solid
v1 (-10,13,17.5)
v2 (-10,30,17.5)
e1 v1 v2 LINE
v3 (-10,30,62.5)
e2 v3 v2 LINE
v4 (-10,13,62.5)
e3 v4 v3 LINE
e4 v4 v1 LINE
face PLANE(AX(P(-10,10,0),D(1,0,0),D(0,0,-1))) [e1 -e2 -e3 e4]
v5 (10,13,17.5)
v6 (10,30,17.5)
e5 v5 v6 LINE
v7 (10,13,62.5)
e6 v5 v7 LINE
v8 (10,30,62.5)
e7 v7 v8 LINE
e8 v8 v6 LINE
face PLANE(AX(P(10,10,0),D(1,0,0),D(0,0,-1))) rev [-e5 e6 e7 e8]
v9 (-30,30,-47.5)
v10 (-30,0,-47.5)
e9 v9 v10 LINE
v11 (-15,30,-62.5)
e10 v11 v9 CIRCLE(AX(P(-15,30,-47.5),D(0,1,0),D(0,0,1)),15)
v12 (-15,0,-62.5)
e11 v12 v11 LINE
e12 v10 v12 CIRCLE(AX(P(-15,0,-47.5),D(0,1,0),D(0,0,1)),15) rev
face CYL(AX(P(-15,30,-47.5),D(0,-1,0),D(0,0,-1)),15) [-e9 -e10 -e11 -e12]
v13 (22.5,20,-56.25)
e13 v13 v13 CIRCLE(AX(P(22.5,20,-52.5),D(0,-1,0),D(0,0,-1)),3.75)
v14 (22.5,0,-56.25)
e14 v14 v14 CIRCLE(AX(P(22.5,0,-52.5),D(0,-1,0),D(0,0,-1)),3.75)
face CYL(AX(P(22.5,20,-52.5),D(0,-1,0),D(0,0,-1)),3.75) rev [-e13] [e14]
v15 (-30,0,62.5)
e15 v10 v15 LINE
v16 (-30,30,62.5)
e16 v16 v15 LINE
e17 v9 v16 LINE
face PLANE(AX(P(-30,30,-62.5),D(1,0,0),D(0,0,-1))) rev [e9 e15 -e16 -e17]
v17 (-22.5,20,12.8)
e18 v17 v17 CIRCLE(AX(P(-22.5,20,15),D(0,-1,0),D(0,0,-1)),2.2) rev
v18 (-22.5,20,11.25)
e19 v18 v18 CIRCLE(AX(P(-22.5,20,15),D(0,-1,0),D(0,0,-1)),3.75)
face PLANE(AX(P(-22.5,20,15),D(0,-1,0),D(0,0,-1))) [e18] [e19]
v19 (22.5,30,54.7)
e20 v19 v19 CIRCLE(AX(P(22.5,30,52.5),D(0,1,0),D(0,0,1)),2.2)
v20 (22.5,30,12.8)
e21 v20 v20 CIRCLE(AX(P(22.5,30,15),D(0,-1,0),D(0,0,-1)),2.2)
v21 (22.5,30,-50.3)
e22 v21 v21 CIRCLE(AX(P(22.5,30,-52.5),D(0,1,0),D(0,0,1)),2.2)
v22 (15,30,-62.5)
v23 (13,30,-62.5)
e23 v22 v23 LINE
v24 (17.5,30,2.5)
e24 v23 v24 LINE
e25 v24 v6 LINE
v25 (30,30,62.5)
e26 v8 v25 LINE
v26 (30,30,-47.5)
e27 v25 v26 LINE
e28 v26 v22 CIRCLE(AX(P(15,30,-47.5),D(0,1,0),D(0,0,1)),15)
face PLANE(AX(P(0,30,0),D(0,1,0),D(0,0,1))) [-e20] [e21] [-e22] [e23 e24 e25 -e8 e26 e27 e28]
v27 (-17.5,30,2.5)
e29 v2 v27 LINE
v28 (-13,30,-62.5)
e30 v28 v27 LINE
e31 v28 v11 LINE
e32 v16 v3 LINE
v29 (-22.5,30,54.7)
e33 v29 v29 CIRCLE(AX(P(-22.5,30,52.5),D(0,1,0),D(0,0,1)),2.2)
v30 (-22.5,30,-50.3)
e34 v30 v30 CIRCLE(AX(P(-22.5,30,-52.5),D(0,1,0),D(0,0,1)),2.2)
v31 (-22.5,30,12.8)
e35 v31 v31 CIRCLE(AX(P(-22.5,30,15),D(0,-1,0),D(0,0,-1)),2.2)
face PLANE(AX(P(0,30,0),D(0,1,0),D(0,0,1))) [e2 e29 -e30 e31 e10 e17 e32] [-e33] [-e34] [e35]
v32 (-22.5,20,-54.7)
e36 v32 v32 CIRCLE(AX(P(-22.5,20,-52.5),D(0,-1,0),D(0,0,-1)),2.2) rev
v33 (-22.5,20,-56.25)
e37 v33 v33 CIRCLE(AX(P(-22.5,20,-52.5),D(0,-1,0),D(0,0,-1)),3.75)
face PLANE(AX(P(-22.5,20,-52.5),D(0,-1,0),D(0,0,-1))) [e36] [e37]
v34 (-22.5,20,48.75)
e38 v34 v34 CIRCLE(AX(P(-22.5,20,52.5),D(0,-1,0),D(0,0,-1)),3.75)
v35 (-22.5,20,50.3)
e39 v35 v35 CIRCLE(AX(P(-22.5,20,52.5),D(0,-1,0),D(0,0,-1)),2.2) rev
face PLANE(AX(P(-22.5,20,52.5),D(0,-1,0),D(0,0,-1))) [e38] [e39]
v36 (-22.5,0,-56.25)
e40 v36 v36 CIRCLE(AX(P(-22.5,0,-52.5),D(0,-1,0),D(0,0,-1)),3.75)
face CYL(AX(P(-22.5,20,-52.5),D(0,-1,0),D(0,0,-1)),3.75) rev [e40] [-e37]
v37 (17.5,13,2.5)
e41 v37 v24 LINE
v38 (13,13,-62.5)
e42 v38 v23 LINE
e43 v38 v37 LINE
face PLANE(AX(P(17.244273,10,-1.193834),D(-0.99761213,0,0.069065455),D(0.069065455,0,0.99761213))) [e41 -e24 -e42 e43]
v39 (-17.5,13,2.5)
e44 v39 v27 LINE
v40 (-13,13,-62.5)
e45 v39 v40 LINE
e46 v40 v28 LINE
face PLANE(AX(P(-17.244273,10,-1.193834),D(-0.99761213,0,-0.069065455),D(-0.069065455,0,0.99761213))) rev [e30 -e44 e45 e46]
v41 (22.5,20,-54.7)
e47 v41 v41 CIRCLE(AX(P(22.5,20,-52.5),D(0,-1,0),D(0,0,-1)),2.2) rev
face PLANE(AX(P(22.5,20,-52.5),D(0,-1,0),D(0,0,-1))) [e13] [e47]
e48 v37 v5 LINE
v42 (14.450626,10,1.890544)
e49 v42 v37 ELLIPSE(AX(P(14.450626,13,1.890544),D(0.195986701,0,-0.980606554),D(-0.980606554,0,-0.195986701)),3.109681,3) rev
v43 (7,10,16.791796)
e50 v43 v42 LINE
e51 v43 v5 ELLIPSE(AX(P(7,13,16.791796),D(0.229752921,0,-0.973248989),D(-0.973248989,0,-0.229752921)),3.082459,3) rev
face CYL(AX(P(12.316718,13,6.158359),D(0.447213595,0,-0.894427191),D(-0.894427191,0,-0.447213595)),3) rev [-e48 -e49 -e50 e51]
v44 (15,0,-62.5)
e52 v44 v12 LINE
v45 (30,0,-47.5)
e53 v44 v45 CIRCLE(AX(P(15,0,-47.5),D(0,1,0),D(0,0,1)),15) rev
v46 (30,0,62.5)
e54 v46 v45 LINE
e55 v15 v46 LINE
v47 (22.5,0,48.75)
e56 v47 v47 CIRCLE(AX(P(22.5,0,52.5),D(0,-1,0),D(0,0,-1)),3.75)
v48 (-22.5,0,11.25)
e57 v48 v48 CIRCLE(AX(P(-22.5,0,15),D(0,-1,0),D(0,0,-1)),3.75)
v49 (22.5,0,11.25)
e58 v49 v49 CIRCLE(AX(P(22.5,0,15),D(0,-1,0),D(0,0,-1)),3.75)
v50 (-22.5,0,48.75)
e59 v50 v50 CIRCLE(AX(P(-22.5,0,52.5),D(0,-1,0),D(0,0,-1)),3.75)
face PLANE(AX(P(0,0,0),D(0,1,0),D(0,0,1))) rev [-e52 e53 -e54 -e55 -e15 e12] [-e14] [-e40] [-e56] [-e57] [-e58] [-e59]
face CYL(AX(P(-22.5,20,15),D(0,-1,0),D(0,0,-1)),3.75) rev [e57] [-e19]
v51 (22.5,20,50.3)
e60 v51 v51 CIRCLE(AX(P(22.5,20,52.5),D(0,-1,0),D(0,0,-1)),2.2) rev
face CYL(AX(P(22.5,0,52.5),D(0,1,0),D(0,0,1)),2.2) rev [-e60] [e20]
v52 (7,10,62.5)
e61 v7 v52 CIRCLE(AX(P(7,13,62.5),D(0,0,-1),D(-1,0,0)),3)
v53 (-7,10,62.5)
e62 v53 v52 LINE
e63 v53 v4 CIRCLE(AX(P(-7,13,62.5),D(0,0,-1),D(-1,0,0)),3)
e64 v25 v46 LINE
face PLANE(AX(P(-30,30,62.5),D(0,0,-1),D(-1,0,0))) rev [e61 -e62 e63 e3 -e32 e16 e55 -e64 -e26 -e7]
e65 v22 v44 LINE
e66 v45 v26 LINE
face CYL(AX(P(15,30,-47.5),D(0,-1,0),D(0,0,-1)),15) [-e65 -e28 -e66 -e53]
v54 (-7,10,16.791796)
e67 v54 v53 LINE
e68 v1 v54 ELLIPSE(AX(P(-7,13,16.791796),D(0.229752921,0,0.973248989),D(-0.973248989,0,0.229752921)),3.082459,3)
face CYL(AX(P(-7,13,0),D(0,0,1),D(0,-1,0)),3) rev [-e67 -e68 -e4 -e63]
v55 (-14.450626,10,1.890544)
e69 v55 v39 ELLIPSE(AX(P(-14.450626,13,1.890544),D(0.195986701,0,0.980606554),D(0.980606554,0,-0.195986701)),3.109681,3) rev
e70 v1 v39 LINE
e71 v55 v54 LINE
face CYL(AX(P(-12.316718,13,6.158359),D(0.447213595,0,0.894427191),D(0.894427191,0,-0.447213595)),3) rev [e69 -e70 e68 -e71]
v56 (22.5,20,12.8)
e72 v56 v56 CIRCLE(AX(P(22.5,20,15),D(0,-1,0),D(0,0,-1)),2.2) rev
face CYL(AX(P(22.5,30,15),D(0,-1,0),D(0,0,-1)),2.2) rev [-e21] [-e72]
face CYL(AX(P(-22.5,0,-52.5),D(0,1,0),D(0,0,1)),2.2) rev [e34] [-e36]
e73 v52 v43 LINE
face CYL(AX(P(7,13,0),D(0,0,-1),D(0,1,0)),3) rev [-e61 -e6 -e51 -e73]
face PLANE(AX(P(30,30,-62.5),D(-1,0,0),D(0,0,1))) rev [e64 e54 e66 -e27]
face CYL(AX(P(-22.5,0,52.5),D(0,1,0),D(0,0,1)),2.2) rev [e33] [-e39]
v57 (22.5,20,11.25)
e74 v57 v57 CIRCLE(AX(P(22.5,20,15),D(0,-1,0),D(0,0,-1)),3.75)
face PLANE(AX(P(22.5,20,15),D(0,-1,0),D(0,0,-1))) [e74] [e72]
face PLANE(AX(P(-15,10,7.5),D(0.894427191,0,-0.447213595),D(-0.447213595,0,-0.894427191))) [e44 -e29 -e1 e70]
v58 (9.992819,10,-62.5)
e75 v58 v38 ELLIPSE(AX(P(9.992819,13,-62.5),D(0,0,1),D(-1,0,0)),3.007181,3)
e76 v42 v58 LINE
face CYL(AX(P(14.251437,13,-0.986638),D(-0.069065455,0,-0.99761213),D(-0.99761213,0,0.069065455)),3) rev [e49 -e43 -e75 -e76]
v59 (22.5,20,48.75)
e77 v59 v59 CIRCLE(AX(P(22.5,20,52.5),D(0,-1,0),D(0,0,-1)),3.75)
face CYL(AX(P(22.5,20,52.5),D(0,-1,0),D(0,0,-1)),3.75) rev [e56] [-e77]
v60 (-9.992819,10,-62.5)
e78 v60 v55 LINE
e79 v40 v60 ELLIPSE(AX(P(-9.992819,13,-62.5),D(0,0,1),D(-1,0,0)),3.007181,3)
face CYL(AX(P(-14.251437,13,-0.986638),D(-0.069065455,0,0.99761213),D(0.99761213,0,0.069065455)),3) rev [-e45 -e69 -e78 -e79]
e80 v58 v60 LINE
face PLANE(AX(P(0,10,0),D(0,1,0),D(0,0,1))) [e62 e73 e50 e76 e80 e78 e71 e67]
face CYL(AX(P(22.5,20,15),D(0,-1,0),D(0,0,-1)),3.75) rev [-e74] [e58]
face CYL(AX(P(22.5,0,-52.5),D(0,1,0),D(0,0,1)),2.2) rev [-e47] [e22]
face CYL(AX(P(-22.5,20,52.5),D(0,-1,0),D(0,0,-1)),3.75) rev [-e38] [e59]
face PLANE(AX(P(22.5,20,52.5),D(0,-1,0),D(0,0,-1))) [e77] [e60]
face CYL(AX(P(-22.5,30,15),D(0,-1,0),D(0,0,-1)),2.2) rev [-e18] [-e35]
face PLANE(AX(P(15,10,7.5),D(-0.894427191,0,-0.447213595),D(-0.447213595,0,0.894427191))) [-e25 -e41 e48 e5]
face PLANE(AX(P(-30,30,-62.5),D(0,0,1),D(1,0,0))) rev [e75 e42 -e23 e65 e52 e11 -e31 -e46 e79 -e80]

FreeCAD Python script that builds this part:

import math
import FreeCAD as App
import Part
import Sketcher
Q = App.Units.Quantity


def edges_at(feature, points):
    """Names of the edges that pass closest to the given points."""
    edges = feature.Shape.Edges
    near = lambda p: min(range(len(edges)), key=lambda i: edges[i].distToShape(Part.Vertex(*p))[0])
    return sorted({f"Edge{near(p) + 1}" for p in points})


def add_polygon(sketch, points):
    """Adds a closed chain of lines whose ends are joined by coincident constraints."""
    first, n = sketch.GeometryCount, len(points)
    for a, b in zip(points, points[1:] + points[:1]):
        sketch.addGeometry(Part.LineSegment(App.Vector(*a, 0), App.Vector(*b, 0)), False)
    for i in range(n):
        sketch.addConstraint(Sketcher.Constraint("Coincident", first + i, 2, first + (i + 1) % n, 1))

doc = App.newDocument("Part")
body = doc.addObject("PartDesign::Body", "Body")

sketch1 = body.newObject("Sketcher::SketchObject", "Sketch")
sketch1.AttachmentSupport = (doc.getObject("XZ_Plane"), [""])
sketch1.MapMode = "FlatFace"
add_polygon(sketch1, [(-30, -62.5), (-30, 62.5), (30, 62.5), (30, -62.5)])
sketch1.addConstraint([
    Sketcher.Constraint("Vertical", 0),
    Sketcher.Constraint("Horizontal", 1),
    Sketcher.Constraint("Vertical", 2),
    Sketcher.Constraint("Horizontal", 3),
    Sketcher.Constraint("Symmetric", 0, 2, 2, 2, -1, 1),
    Sketcher.Constraint("DistanceX", 1, 1, 1, 2, Q("60 mm")),
    Sketcher.Constraint("DistanceY", 0, 1, 0, 2, Q("125 mm")),
])
pad1 = body.newObject("PartDesign::Pad", "Pad")
pad1.Profile = sketch1
pad1.Length = 30
pad1.Reversed = True

sketch2 = body.newObject("Sketcher::SketchObject", "Sketch001")
sketch2.AttachmentSupport = (doc.getObject("XZ_Plane"), [""])
sketch2.MapMode = "FlatFace"
sketch2.AttachmentOffset = App.Placement(App.Vector(0, 0, -30), App.Rotation())
sketch2.addGeometry([
    Part.ArcOfCircle(Part.Circle(App.Vector(-22.5, 52.5, 0), App.Vector(0, 0, 1), 2.2), math.radians(-90), math.radians(0)),
    Part.ArcOfCircle(Part.Circle(App.Vector(-22.5, 52.5, 0), App.Vector(0, 0, 1), 2.2), math.radians(0), math.radians(270)),
    Part.ArcOfCircle(Part.Circle(App.Vector(22.5, 52.5, 0), App.Vector(0, 0, 1), 2.2), math.radians(-90), math.radians(0)),
    Part.ArcOfCircle(Part.Circle(App.Vector(22.5, 52.5, 0), App.Vector(0, 0, 1), 2.2), math.radians(180), math.radians(270)),
    Part.ArcOfCircle(Part.Circle(App.Vector(22.5, 52.5, 0), App.Vector(0, 0, 1), 2.2), math.radians(0), math.radians(180)),
    Part.ArcOfCircle(Part.Circle(App.Vector(-22.5, -52.5, 0), App.Vector(0, 0, 1), 2.2), math.radians(90), math.radians(360)),
    Part.ArcOfCircle(Part.Circle(App.Vector(-22.5, -52.5, 0), App.Vector(0, 0, 1), 2.2), math.radians(0), math.radians(90)),
    Part.ArcOfCircle(Part.Circle(App.Vector(22.5, -52.5, 0), App.Vector(0, 0, 1), 2.2), math.radians(90), math.radians(180)),
    Part.ArcOfCircle(Part.Circle(App.Vector(22.5, -52.5, 0), App.Vector(0, 0, 1), 2.2), math.radians(0), math.radians(90)),
    Part.ArcOfCircle(Part.Circle(App.Vector(22.5, -52.5, 0), App.Vector(0, 0, 1), 2.2), math.radians(180), math.radians(360)),
], False)
sketch2.addConstraint([
    Sketcher.Constraint("Tangent", 0, 1, 1, 2),
    Sketcher.Constraint("Coincident", 1, 1, 0, 2),
    Sketcher.Constraint("Tangent", 2, 1, 3, 2),
    Sketcher.Constraint("Tangent", 3, 1, 4, 2),
    Sketcher.Constraint("Tangent", 4, 1, 2, 2),
    Sketcher.Constraint("Tangent", 5, 1, 6, 2),
    Sketcher.Constraint("Coincident", 6, 1, 5, 2),
    Sketcher.Constraint("Tangent", 7, 1, 8, 2),
    Sketcher.Constraint("Tangent", 8, 1, 9, 2),
    Sketcher.Constraint("Tangent", 9, 1, 7, 2),
    Sketcher.Constraint("Equal", 1, 2),
    Sketcher.Constraint("Equal", 4, 5),
    Sketcher.Constraint("Equal", 6, 7),
    Sketcher.Constraint("Symmetric", 2, 3, 5, 3, -1, 1),
    Sketcher.Constraint("Symmetric", 0, 3, 7, 3, -1, 1),
    Sketcher.Constraint("Symmetric", 0, 3, 2, 3, -2),
    Sketcher.Constraint("Horizontal", 4, 3, 1, 1),
    Sketcher.Constraint("Horizontal", 1, 1, 3, 1),
    Sketcher.Constraint("Horizontal", 3, 1, 4, 1),
    Sketcher.Constraint("Horizontal", 9, 3, 6, 1),
    Sketcher.Constraint("Horizontal", 6, 1, 8, 1),
    Sketcher.Constraint("Horizontal", 8, 1, 9, 1),
    Sketcher.Constraint("Vertical", 6, 3, 0, 1),
    Sketcher.Constraint("Vertical", 9, 3, 2, 1),
    Sketcher.Constraint("Vertical", 0, 1, 5, 1),
    Sketcher.Constraint("Vertical", 2, 1, 7, 1),
    Sketcher.Constraint("Radius", 0, Q("2.2 mm")),
    Sketcher.Constraint("DistanceX", 0, 3, 2, 3, Q("45 mm")),
    Sketcher.Constraint("DistanceY", 5, 3, 0, 3, Q("105 mm")),
])
pocket1 = body.newObject("PartDesign::Pocket", "Pocket")
pocket1.Profile = sketch2
pocket1.Type = "ThroughAll"
pocket1.Reversed = True

sketch3 = body.newObject("Sketcher::SketchObject", "Sketch002")
sketch3.AttachmentSupport = (doc.getObject("XZ_Plane"), [""])
sketch3.MapMode = "FlatFace"
sketch3.addGeometry([
    Part.ArcOfCircle(Part.Circle(App.Vector(22.5, 15, 0), App.Vector(0, 0, 1), 2.2), math.radians(180), math.radians(267.197756)),
    Part.ArcOfCircle(Part.Circle(App.Vector(22.5, 15, 0), App.Vector(0, 0, 1), 2.2), math.radians(-92.802244), math.radians(0)),
    Part.ArcOfCircle(Part.Circle(App.Vector(22.5, 15, 0), App.Vector(0, 0, 1), 2.2), math.radians(0), math.radians(92.802244)),
    Part.ArcOfCircle(Part.Circle(App.Vector(22.5, 15, 0), App.Vector(0, 0, 1), 2.2), math.radians(92.802244), math.radians(180)),
    Part.ArcOfCircle(Part.Circle(App.Vector(-22.5, 15, 0), App.Vector(0, 0, 1), 2.2), math.radians(180), math.radians(272.802244)),
    Part.ArcOfCircle(Part.Circle(App.Vector(-22.5, 15, 0), App.Vector(0, 0, 1), 2.2), math.radians(-87.197756), math.radians(0)),
    Part.ArcOfCircle(Part.Circle(App.Vector(-22.5, 15, 0), App.Vector(0, 0, 1), 2.2), math.radians(0), math.radians(87.197756)),
    Part.ArcOfCircle(Part.Circle(App.Vector(-22.5, 15, 0), App.Vector(0, 0, 1), 2.2), math.radians(87.197756), math.radians(180)),
], False)
sketch3.addConstraint([
    Sketcher.Constraint("Tangent", 0, 2, 1, 1),
    Sketcher.Constraint("Tangent", 1, 2, 2, 1),
    Sketcher.Constraint("Tangent", 2, 2, 3, 1),
    Sketcher.Constraint("Tangent", 3, 2, 0, 1),
    Sketcher.Constraint("Tangent", 4, 2, 5, 1),
    Sketcher.Constraint("Tangent", 5, 2, 6, 1),
    Sketcher.Constraint("Tangent", 6, 2, 7, 1),
    Sketcher.Constraint("Tangent", 7, 2, 4, 1),
    Sketcher.Constraint("Equal", 0, 1),
    Sketcher.Constraint("Equal", 3, 4),
    Sketcher.Constraint("Equal", 4, 5),
    Sketcher.Constraint("Symmetric", 0, 3, 4, 3, -2),
    Sketcher.Constraint("Horizontal", 7, 3, 1, 2),
    Sketcher.Constraint("Horizontal", 1, 2, 3, 2),
    Sketcher.Constraint("Horizontal", 0, 2, 4, 2),
    Sketcher.Constraint("Horizontal", 3, 2, 5, 2),
    Sketcher.Constraint("Horizontal", 2, 2, 6, 2),
    Sketcher.Constraint("Horizontal", 5, 2, 7, 2),
    Sketcher.Constraint("Vertical", 0, 2, 2, 2),
    Sketcher.Constraint("Radius", 0, Q("2.2 mm")),
    Sketcher.Constraint("DistanceY", -1, 1, 0, 3, Q("15 mm")),
    Sketcher.Constraint("DistanceX", 4, 3, 0, 3, Q("45 mm")),
    Sketcher.Constraint("DistanceY", -1, 1, 0, 2, Q("12.802631 mm")),
])
pocket2 = body.newObject("PartDesign::Pocket", "Pocket001")
pocket2.Profile = sketch3
pocket2.Type = "ThroughAll"

sketch4 = body.newObject("Sketcher::SketchObject", "Sketch003")
sketch4.AttachmentSupport = (doc.getObject("XZ_Plane"), [""])
sketch4.MapMode = "FlatFace"
sketch4.AttachmentOffset = App.Placement(App.Vector(0, 0, -30), App.Rotation())
add_polygon(sketch4, [(10, 62.5), (10, 17.5), (17.5, 2.5), (13, -62.5), (-13, -62.5), (-17.5, 2.5), (-10, 17.5), (-10, 62.5)])
sketch4.addConstraint([
    Sketcher.Constraint("Vertical", 0),
    Sketcher.Constraint("Horizontal", 3),
    Sketcher.Constraint("Vertical", 6),
    Sketcher.Constraint("Horizontal", 7),
    Sketcher.Constraint("Symmetric", 1, 2, 4, 2, -2),
    Sketcher.Constraint("Symmetric", 0, 2, 5, 2, -2),
    Sketcher.Constraint("Equal", 2, 4),
    Sketcher.Constraint("DistanceX", 3, 2, 3, 1, Q("26 mm")),
    Sketcher.Constraint("DistanceX", 7, 1, 7, 2, Q("20 mm")),
    Sketcher.Constraint("DistanceY", 0, 2, 0, 1, Q("45 mm")),
    Sketcher.Constraint("DistanceY", 1, 2, 0, 2, Q("15 mm")),
    Sketcher.Constraint("DistanceY", 2, 2, 1, 2, Q("65 mm")),
    Sketcher.Constraint("DistanceX", 4, 2, 1, 2, Q("35 mm")),
    Sketcher.Constraint("DistanceY", -1, 1, 0, 2, Q("17.5 mm")),
])
pocket3 = body.newObject("PartDesign::Pocket", "Pocket002")
pocket3.Profile = sketch4
pocket3.Length = 20
pocket3.Reversed = True
doc.recompute()

fillet = body.newObject("PartDesign::Fillet", "Fillet")
fillet.Base = (pocket3, edges_at(pocket3, [
    (10, 10, 40),
    (-15.25, 10, -30),
    (15.25, 10, -30),
    (13.75, 10, 10),
    (-10, 10, 40),
    (-13.75, 10, 10),
]))
fillet.Radius = 3
doc.recompute()

fillet2 = body.newObject("PartDesign::Fillet", "Fillet001")
fillet2.Base = (fillet, edges_at(fillet, [(-30, 15, -62.5), (30, 15, -62.5)]))
fillet2.Radius = 15

sketch5 = body.newObject("Sketcher::SketchObject", "Sketch004")
sketch5.AttachmentSupport = (doc.getObject("XZ_Plane"), [""])
sketch5.MapMode = "FlatFace"
sketch5.addGeometry([
    Part.Circle(App.Vector(-22.5, -52.5, 0), App.Vector(0, 0, 1), 3.75),
    Part.Circle(App.Vector(22.5, -52.5, 0), App.Vector(0, 0, 1), 3.75),
    Part.Circle(App.Vector(-22.5, 15, 0), App.Vector(0, 0, 1), 3.75),
    Part.Circle(App.Vector(22.5, 15, 0), App.Vector(0, 0, 1), 3.75),
    Part.Circle(App.Vector(-22.5, 52.5, 0), App.Vector(0, 0, 1), 3.75),
    Part.Circle(App.Vector(22.5, 52.5, 0), App.Vector(0, 0, 1), 3.75),
], False)
sketch5.addConstraint([
    Sketcher.Constraint("Equal", 0, 1),
    Sketcher.Constraint("Equal", 1, 2),
    Sketcher.Constraint("Equal", 2, 3),
    Sketcher.Constraint("Equal", 3, 4),
    Sketcher.Constraint("Equal", 4, 5),
    Sketcher.Constraint("Symmetric", 1, 3, 4, 3, -1, 1),
    Sketcher.Constraint("Symmetric", 0, 3, 5, 3, -1, 1),
    Sketcher.Constraint("Symmetric", 0, 3, 1, 3, -2),
    Sketcher.Constraint("Symmetric", 2, 3, 3, 3, -2),
    Sketcher.Constraint("Vertical", 0, 3, 2, 3),
    Sketcher.Constraint("Diameter", 0, Q("7.5 mm")),
    Sketcher.Constraint("DistanceY", -1, 1, 2, 3, Q("15 mm")),
    Sketcher.Constraint("DistanceX", 0, 3, 1, 3, Q("45 mm")),
    Sketcher.Constraint("DistanceY", 0, 3, 4, 3, Q("105 mm")),
])
pocket4 = body.newObject("PartDesign::Pocket", "Pocket003")
pocket4.Profile = sketch5
pocket4.Length = 20

doc.recompute()
